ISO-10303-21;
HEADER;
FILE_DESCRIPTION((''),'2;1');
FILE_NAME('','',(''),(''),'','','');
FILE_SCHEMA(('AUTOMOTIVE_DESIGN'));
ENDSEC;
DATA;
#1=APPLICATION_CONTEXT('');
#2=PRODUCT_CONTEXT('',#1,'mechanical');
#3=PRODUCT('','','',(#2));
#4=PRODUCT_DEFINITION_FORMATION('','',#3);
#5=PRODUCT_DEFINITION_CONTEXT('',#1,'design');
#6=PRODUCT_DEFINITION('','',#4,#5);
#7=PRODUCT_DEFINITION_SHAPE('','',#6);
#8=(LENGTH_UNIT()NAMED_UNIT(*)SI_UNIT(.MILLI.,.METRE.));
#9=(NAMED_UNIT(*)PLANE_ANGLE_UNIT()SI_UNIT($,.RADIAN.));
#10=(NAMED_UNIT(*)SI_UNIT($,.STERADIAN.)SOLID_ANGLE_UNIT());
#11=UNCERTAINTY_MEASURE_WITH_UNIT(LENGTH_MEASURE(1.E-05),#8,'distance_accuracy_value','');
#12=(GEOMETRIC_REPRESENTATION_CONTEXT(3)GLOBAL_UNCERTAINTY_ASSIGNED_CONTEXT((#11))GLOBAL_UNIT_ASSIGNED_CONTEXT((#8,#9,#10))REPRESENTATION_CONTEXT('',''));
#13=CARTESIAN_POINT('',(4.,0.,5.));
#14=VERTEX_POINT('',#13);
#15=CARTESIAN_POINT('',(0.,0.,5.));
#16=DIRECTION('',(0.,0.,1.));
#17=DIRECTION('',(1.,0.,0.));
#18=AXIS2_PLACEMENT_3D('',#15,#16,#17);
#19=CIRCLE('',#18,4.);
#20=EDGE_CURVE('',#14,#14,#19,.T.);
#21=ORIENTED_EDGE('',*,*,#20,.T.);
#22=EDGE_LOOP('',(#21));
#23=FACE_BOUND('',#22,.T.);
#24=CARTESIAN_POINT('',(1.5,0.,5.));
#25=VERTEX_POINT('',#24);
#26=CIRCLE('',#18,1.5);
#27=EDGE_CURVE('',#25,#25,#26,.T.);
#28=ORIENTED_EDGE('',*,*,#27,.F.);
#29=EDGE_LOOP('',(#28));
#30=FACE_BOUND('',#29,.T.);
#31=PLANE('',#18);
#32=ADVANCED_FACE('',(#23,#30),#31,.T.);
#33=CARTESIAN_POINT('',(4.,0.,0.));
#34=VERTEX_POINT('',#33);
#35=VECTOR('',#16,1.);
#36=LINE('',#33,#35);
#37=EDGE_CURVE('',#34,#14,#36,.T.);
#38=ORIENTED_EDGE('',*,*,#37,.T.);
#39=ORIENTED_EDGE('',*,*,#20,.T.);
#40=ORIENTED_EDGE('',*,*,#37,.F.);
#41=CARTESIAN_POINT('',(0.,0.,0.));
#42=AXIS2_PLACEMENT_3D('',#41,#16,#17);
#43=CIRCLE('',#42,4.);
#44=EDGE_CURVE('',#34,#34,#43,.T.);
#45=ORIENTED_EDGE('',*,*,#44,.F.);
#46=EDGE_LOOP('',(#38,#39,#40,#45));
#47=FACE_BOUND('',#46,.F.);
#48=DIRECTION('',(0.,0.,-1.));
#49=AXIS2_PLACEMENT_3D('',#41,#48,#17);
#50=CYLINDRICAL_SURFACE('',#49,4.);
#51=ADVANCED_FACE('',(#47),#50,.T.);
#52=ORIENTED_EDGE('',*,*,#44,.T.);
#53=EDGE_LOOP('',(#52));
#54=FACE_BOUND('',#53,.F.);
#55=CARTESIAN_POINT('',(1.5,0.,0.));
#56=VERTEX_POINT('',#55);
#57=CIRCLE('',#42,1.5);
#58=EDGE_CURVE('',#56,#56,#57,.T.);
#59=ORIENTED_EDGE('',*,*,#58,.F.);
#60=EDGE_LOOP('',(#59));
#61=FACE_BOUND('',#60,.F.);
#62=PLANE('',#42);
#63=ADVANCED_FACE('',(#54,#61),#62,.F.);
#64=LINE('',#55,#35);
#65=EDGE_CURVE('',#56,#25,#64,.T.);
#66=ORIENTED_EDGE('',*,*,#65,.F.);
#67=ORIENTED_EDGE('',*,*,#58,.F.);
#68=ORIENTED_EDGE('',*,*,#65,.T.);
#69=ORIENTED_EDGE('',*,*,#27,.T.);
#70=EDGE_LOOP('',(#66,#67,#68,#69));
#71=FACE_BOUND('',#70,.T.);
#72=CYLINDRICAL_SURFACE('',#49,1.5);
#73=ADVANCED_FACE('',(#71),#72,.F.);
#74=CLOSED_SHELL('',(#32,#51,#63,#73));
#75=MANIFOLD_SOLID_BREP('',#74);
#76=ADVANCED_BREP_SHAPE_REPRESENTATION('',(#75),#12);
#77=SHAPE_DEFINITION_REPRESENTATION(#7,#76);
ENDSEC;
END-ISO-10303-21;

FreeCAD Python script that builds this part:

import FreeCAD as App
import Part
import Sketcher
from FreeCAD import Vector

doc = App.newDocument("Part")
params = doc.addObject("Spreadsheet::Sheet", "Params")
for row, (alias, value) in enumerate([
    ("sketch1_diameter", "8 mm"),
    ("sketch1_diameter2", "3 mm"),
    ("pad1_length", "5 mm"),
], start=1):
    params.set(f"A{row}", alias)
    params.set(f"B{row}", "=" + value)
    params.setAlias(f"B{row}", alias)

body = doc.addObject("PartDesign::Body", "Body")

sketch1 = body.newObject("Sketcher::SketchObject", "Sketch")
sketch1.AttachmentSupport = (doc.getObject("XY_Plane"), [""])
sketch1.MapMode = "FlatFace"
sketch1.addGeometry(Part.Circle(Vector(0, 0, 0), Vector(0, 0, 1), 4), False)
sketch1.addGeometry(Part.Circle(Vector(0, 0, 0), Vector(0, 0, 1), 1.5), False)
sketch1.addConstraint(Sketcher.Constraint("Coincident", 0, 3, -1, 1))
sketch1.addConstraint(Sketcher.Constraint("Coincident", 1, 3, -1, 1))
sketch1.addConstraint(Sketcher.Constraint("Diameter", 0, 8.0))
sketch1.addConstraint(Sketcher.Constraint("Diameter", 1, 3.0))
sketch1.setExpression("Constraints[2]", "Params.sketch1_diameter")
sketch1.setExpression("Constraints[3]", "Params.sketch1_diameter2")
pad1 = body.newObject("PartDesign::Pad", "Pad")
pad1.Profile = sketch1
pad1.setExpression("Length", "Params.pad1_length")

doc.recompute()
